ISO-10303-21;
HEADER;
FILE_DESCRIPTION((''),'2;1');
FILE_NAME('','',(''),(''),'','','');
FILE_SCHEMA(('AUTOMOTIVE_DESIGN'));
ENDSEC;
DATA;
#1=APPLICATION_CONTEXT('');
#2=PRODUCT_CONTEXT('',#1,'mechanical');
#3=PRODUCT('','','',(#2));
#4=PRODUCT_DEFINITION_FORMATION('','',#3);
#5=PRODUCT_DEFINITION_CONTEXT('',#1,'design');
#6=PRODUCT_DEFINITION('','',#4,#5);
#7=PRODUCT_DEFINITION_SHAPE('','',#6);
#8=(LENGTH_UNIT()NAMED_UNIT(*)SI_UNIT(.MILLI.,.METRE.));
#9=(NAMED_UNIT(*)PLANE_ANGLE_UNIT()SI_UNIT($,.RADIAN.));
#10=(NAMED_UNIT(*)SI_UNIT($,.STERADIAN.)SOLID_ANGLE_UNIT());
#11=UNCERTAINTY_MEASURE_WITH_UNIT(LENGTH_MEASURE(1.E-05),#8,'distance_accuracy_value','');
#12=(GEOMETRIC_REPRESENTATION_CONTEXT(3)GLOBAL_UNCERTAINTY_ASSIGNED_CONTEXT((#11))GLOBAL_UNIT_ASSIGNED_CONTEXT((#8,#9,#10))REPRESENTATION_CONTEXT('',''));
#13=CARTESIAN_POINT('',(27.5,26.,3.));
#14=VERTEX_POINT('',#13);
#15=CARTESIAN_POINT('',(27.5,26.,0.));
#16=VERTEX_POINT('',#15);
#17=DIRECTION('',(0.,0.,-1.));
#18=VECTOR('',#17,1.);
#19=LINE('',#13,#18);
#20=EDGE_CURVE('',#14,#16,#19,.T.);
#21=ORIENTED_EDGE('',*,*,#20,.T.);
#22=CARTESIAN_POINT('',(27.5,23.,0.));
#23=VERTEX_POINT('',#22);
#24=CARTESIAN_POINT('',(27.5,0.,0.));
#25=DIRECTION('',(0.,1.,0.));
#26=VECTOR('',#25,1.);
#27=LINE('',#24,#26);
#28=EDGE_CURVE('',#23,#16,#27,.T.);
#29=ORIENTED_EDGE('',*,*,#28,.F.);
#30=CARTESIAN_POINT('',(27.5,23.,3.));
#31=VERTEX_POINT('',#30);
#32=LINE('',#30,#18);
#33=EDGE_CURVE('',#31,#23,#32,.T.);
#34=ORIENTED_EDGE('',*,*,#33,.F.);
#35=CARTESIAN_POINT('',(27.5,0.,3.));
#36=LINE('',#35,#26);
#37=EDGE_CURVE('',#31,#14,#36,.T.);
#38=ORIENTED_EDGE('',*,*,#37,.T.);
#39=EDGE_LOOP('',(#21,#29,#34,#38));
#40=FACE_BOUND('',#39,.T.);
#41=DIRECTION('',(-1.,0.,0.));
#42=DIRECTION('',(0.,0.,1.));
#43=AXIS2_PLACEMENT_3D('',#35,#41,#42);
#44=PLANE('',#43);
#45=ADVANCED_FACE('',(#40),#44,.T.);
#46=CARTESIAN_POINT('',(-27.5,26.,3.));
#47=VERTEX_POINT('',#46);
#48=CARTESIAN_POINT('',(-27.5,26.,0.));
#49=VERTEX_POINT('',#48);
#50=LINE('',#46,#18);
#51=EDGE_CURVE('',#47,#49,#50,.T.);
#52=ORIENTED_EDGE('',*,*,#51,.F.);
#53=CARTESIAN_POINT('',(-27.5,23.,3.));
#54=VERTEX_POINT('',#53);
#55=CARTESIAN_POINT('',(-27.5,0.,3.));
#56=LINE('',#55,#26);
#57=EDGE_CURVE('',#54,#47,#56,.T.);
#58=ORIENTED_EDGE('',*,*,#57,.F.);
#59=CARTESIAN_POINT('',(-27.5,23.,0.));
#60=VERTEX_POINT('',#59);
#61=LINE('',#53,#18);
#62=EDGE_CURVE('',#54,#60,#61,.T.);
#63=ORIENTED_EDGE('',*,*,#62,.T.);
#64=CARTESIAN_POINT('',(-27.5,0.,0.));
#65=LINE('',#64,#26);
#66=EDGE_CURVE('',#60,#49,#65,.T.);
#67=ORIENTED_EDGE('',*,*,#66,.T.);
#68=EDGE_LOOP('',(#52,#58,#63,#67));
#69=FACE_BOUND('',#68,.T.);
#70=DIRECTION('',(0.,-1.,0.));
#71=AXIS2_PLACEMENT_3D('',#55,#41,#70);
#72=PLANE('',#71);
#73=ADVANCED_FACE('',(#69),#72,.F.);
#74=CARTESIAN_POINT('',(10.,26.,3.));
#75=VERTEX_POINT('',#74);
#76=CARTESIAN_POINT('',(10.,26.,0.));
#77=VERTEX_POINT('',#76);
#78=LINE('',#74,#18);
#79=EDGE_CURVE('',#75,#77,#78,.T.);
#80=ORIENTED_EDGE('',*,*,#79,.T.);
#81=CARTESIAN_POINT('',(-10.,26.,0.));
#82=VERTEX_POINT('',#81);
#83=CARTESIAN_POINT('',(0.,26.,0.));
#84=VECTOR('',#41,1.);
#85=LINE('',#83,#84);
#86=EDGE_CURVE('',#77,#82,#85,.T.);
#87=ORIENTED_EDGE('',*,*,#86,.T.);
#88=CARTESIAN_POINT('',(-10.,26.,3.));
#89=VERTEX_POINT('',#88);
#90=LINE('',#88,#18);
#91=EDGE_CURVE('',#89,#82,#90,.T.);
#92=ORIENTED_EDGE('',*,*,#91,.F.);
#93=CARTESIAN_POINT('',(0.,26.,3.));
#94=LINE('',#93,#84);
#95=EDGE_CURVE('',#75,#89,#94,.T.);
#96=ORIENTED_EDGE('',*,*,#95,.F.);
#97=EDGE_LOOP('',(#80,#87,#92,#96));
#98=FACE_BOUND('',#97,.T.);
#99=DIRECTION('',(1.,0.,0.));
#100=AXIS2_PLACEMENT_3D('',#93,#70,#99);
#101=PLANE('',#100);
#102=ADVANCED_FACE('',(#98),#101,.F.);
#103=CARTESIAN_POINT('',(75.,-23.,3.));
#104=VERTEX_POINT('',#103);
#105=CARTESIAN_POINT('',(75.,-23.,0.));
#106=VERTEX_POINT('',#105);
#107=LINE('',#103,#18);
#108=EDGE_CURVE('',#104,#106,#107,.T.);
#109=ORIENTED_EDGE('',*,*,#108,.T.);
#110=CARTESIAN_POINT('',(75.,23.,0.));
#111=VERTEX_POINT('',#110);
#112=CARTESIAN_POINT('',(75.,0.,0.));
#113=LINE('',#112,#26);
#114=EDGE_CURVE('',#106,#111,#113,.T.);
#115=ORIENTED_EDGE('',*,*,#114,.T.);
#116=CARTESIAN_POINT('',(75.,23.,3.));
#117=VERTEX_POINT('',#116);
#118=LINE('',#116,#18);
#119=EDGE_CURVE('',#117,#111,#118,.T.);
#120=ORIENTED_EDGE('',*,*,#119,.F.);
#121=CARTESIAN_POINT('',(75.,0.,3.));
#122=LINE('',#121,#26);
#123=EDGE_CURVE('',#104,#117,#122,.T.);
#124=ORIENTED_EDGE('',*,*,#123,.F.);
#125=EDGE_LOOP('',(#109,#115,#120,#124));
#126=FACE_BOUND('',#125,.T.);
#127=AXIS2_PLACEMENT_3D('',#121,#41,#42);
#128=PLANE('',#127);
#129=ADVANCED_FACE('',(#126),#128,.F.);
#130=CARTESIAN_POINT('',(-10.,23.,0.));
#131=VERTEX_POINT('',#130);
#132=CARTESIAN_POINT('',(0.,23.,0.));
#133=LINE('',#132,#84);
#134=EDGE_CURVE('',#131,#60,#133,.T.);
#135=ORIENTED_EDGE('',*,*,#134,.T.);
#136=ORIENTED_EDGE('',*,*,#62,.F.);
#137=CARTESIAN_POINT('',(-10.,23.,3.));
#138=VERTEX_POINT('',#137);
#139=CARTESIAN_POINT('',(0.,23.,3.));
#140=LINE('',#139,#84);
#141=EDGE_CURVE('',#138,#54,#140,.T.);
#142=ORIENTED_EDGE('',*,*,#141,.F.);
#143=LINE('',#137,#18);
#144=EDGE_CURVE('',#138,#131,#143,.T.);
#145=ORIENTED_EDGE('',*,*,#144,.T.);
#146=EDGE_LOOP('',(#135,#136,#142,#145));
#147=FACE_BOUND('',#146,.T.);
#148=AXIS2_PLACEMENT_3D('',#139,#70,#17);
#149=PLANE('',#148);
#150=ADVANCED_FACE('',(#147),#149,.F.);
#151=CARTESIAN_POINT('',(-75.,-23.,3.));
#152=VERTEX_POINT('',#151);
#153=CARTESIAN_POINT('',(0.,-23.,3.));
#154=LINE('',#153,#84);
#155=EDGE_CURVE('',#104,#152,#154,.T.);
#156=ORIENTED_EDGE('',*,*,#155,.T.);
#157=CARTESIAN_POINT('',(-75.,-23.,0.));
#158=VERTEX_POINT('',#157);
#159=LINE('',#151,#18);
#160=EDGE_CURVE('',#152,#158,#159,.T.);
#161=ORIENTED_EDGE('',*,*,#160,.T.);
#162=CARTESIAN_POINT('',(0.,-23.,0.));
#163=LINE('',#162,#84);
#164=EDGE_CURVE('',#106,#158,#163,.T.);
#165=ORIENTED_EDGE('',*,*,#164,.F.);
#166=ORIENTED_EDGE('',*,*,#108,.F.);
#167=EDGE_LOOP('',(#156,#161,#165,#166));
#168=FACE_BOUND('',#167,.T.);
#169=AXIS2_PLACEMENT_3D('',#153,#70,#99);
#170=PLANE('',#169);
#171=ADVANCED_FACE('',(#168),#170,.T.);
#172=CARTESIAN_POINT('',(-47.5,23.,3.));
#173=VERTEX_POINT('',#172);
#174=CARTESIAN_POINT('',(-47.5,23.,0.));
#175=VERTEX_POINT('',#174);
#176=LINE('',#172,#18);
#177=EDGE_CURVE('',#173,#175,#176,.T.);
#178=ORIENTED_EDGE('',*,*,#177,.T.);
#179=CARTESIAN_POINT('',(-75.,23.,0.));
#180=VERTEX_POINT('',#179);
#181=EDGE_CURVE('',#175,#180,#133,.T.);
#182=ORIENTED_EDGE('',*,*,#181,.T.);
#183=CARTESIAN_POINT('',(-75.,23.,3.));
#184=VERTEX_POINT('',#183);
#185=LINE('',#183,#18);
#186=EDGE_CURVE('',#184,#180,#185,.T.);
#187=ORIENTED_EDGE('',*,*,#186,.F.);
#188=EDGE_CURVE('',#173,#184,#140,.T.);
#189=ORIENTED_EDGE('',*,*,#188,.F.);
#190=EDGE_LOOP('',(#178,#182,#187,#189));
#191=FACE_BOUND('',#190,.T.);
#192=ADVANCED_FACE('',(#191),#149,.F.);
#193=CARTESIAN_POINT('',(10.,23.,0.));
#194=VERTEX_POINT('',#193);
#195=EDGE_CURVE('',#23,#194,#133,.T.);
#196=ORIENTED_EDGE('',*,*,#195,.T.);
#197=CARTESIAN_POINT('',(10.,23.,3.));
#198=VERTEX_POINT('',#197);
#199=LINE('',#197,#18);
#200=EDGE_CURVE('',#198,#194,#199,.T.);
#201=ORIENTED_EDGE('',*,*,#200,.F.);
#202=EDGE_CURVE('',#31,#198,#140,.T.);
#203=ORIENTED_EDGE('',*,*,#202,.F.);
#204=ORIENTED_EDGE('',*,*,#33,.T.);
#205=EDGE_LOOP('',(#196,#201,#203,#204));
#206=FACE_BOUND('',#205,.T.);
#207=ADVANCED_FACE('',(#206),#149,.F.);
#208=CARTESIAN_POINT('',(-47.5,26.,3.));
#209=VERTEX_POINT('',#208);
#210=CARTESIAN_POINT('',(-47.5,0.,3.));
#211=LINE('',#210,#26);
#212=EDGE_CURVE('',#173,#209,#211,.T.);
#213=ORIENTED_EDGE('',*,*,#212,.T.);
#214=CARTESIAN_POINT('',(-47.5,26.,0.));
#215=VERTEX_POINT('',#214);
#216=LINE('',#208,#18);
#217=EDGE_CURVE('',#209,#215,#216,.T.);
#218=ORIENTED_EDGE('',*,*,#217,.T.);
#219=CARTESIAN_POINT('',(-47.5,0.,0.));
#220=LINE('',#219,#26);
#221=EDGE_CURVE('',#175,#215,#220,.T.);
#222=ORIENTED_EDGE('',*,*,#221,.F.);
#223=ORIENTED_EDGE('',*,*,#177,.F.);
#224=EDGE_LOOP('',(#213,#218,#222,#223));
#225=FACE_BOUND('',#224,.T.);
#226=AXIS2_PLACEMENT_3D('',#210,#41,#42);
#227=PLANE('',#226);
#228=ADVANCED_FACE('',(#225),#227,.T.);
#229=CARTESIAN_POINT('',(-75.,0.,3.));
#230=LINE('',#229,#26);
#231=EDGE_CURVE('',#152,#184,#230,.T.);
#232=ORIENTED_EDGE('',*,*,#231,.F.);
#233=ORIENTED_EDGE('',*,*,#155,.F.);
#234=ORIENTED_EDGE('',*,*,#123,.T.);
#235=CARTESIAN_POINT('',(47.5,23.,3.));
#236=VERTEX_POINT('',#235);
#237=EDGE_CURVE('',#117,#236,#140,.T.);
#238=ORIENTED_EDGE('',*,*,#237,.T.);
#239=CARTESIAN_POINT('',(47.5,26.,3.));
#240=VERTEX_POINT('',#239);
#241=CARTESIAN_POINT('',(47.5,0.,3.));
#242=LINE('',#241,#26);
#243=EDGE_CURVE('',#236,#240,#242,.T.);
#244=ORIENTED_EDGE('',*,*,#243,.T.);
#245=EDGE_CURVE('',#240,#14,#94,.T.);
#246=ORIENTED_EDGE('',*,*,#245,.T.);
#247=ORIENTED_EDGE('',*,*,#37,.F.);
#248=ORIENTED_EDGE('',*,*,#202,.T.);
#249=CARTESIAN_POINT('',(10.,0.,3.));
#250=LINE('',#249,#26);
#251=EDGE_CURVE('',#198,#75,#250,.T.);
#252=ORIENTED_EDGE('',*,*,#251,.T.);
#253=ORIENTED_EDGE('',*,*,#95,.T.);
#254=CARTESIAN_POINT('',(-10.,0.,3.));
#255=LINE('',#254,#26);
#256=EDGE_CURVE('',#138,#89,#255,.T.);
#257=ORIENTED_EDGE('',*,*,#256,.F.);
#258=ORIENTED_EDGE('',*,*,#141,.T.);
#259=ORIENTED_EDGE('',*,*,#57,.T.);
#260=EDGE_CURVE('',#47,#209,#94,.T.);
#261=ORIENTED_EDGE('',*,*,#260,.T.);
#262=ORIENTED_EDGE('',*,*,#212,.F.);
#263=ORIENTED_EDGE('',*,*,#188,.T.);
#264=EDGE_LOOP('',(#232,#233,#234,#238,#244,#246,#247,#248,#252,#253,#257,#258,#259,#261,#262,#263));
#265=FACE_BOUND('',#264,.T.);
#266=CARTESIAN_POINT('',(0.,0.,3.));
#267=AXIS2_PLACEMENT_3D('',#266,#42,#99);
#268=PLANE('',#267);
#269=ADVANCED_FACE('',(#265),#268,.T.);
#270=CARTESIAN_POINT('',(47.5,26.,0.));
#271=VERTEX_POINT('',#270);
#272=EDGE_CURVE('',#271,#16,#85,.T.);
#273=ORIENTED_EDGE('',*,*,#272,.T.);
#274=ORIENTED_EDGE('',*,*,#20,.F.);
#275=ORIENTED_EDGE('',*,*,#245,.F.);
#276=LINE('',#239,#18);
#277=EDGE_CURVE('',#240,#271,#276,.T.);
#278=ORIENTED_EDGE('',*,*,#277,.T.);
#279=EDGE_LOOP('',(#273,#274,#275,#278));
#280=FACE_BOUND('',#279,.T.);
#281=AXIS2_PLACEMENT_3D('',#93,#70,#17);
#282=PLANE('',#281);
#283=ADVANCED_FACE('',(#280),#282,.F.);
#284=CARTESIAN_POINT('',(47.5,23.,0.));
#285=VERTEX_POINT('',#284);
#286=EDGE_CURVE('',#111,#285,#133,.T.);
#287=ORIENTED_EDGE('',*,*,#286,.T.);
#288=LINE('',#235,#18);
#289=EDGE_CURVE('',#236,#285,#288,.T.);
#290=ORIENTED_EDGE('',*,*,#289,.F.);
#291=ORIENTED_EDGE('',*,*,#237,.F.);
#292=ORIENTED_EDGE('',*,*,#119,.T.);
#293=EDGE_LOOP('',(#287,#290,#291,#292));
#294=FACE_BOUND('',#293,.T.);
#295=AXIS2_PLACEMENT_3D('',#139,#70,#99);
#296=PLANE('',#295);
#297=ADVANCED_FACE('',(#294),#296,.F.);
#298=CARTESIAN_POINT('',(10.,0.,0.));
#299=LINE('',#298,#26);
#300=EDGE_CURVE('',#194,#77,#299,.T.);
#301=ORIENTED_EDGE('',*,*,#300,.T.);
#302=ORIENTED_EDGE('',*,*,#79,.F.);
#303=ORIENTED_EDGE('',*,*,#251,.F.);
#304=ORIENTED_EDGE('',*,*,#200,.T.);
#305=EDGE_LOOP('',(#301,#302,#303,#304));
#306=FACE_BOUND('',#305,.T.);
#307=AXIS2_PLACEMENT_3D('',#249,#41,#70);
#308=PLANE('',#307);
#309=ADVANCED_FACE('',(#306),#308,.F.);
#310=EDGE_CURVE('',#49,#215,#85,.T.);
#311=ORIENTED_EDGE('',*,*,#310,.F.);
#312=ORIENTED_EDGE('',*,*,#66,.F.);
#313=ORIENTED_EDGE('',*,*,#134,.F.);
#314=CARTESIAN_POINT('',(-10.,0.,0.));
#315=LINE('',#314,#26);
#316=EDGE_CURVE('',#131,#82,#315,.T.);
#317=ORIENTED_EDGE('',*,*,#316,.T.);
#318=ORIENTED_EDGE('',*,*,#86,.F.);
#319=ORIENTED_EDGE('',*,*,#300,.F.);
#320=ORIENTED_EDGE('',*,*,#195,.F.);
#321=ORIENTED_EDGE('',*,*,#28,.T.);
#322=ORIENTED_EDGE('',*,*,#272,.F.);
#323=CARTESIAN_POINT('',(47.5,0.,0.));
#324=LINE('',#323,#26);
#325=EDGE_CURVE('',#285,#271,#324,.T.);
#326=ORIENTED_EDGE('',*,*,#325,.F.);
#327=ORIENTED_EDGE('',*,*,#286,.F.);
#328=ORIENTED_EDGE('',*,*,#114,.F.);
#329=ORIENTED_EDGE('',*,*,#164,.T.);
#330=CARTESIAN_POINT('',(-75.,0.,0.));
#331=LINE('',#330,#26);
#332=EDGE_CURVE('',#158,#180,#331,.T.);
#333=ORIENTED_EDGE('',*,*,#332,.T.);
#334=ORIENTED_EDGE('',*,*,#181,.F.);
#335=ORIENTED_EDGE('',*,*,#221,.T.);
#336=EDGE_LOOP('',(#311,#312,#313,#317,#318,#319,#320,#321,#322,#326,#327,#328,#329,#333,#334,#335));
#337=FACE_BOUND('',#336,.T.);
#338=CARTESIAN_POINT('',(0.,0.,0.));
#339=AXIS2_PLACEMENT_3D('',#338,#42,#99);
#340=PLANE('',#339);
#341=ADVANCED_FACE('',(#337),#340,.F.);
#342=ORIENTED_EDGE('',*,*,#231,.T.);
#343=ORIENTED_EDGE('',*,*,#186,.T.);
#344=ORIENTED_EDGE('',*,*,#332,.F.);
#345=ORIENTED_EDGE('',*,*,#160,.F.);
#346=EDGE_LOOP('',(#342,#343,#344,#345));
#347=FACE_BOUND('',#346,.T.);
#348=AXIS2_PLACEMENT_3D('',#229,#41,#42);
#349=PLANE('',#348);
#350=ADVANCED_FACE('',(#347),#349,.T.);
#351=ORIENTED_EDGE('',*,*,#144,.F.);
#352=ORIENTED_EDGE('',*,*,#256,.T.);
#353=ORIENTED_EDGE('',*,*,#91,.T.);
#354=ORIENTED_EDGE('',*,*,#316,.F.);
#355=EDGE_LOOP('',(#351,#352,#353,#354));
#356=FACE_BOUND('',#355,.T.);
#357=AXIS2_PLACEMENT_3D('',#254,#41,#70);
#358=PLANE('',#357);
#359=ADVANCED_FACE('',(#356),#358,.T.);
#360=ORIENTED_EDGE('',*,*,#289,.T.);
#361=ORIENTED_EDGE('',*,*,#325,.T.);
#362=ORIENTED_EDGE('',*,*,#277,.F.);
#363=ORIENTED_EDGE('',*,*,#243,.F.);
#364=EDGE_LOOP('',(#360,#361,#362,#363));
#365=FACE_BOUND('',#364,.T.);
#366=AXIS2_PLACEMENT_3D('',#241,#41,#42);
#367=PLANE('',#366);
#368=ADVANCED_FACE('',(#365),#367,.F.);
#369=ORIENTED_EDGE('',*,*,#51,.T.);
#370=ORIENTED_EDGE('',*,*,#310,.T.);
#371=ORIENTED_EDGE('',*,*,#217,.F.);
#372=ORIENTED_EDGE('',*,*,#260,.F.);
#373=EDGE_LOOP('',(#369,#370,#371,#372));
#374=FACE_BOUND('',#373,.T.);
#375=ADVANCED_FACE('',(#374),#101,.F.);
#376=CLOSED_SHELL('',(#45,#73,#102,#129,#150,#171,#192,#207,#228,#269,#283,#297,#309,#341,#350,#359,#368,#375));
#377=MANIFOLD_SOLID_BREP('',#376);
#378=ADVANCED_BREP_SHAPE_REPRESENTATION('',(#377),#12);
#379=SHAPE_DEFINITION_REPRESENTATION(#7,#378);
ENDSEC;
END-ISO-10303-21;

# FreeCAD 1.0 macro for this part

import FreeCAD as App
import Part
import Sketcher

V = App.Vector

doc = App.newDocument("Part")
body = doc.addObject("PartDesign::Body", "Body")

sketch1 = body.newObject("Sketcher::SketchObject", "Sketch")
sketch1.AttachmentSupport = (doc.getObject("XY_Plane"), [""])
sketch1.MapMode = "FlatFace"
sketch1.addGeometry([
    Part.LineSegment(V(-75, -23, 0), V(75, -23, 0)),
    Part.LineSegment(V(75, -23, 0), V(75, 23, 0)),
    Part.LineSegment(V(75, 23, 0), V(47.5, 23, 0)),
    Part.LineSegment(V(47.5, 23, 0), V(47.5, 26, 0)),
    Part.LineSegment(V(47.5, 26, 0), V(27.5, 26, 0)),
    Part.LineSegment(V(27.5, 26, 0), V(27.5, 23, 0)),
    Part.LineSegment(V(27.5, 23, 0), V(10, 23, 0)),
    Part.LineSegment(V(10, 23, 0), V(10, 26, 0)),
    Part.LineSegment(V(10, 26, 0), V(-10, 26, 0)),
    Part.LineSegment(V(-10, 26, 0), V(-10, 23, 0)),
    Part.LineSegment(V(-10, 23, 0), V(-27.5, 23, 0)),
    Part.LineSegment(V(-27.5, 23, 0), V(-27.5, 26, 0)),
    Part.LineSegment(V(-27.5, 26, 0), V(-47.5, 26, 0)),
    Part.LineSegment(V(-47.5, 26, 0), V(-47.5, 23, 0)),
    Part.LineSegment(V(-47.5, 23, 0), V(-75, 23, 0)),
    Part.LineSegment(V(-75, 23, 0), V(-75, -23, 0)),
], False)
sketch1.addConstraint([
    Sketcher.Constraint("Coincident", 0, 2, 1, 1),
    Sketcher.Constraint("Coincident", 1, 2, 2, 1),
    Sketcher.Constraint("Coincident", 2, 2, 3, 1),
    Sketcher.Constraint("Coincident", 3, 2, 4, 1),
    Sketcher.Constraint("Coincident", 4, 2, 5, 1),
    Sketcher.Constraint("Coincident", 5, 2, 6, 1),
    Sketcher.Constraint("Coincident", 6, 2, 7, 1),
    Sketcher.Constraint("Coincident", 7, 2, 8, 1),
    Sketcher.Constraint("Coincident", 8, 2, 9, 1),
    Sketcher.Constraint("Coincident", 9, 2, 10, 1),
    Sketcher.Constraint("Coincident", 10, 2, 11, 1),
    Sketcher.Constraint("Coincident", 11, 2, 12, 1),
    Sketcher.Constraint("Coincident", 12, 2, 13, 1),
    Sketcher.Constraint("Coincident", 13, 2, 14, 1),
    Sketcher.Constraint("Coincident", 14, 2, 15, 1),
    Sketcher.Constraint("Coincident", 15, 2, 0, 1),
    Sketcher.Constraint("Horizontal", 0),
    Sketcher.Constraint("Vertical", 1),
    Sketcher.Constraint("Horizontal", 2),
    Sketcher.Constraint("Vertical", 3),
    Sketcher.Constraint("Horizontal", 4),
    Sketcher.Constraint("Vertical", 5),
    Sketcher.Constraint("Horizontal", 6),
    Sketcher.Constraint("Vertical", 7),
    Sketcher.Constraint("Horizontal", 8),
    Sketcher.Constraint("Vertical", 9),
    Sketcher.Constraint("Horizontal", 10),
    Sketcher.Constraint("Vertical", 11),
    Sketcher.Constraint("Horizontal", 12),
    Sketcher.Constraint("Vertical", 13),
    Sketcher.Constraint("Horizontal", 14),
    Sketcher.Constraint("Vertical", 15),
    Sketcher.Constraint("Symmetric", 0, 2, 14, 2, -1, 1),
    Sketcher.Constraint("Symmetric", 6, 2, 9, 2, -2),
    Sketcher.Constraint("Symmetric", 4, 2, 11, 2, -2),
    Sketcher.Constraint("Symmetric", 2, 2, 13, 2, -2),
    Sketcher.Constraint("Horizontal", 2, 2, 5, 2),
    Sketcher.Constraint("Horizontal", 4, 2, 7, 2),
    Sketcher.Constraint("Equal", 4, 8),
    Sketcher.Constraint("DistanceX", 0, 1, 0, 2, 150.0),
    Sketcher.Constraint("DistanceX", 4, 2, 4, 1, 20.0),
    Sketcher.Constraint("DistanceY", 1, 1, 1, 2, 46.0),
    Sketcher.Constraint("DistanceY", 3, 1, 3, 2, 3.0),
    Sketcher.Constraint("DistanceX", 2, 2, 2, 1, 27.5),
])
pad1 = body.newObject("PartDesign::Pad", "Pad")
pad1.Profile = sketch1
pad1.Length = 3

doc.recompute()
